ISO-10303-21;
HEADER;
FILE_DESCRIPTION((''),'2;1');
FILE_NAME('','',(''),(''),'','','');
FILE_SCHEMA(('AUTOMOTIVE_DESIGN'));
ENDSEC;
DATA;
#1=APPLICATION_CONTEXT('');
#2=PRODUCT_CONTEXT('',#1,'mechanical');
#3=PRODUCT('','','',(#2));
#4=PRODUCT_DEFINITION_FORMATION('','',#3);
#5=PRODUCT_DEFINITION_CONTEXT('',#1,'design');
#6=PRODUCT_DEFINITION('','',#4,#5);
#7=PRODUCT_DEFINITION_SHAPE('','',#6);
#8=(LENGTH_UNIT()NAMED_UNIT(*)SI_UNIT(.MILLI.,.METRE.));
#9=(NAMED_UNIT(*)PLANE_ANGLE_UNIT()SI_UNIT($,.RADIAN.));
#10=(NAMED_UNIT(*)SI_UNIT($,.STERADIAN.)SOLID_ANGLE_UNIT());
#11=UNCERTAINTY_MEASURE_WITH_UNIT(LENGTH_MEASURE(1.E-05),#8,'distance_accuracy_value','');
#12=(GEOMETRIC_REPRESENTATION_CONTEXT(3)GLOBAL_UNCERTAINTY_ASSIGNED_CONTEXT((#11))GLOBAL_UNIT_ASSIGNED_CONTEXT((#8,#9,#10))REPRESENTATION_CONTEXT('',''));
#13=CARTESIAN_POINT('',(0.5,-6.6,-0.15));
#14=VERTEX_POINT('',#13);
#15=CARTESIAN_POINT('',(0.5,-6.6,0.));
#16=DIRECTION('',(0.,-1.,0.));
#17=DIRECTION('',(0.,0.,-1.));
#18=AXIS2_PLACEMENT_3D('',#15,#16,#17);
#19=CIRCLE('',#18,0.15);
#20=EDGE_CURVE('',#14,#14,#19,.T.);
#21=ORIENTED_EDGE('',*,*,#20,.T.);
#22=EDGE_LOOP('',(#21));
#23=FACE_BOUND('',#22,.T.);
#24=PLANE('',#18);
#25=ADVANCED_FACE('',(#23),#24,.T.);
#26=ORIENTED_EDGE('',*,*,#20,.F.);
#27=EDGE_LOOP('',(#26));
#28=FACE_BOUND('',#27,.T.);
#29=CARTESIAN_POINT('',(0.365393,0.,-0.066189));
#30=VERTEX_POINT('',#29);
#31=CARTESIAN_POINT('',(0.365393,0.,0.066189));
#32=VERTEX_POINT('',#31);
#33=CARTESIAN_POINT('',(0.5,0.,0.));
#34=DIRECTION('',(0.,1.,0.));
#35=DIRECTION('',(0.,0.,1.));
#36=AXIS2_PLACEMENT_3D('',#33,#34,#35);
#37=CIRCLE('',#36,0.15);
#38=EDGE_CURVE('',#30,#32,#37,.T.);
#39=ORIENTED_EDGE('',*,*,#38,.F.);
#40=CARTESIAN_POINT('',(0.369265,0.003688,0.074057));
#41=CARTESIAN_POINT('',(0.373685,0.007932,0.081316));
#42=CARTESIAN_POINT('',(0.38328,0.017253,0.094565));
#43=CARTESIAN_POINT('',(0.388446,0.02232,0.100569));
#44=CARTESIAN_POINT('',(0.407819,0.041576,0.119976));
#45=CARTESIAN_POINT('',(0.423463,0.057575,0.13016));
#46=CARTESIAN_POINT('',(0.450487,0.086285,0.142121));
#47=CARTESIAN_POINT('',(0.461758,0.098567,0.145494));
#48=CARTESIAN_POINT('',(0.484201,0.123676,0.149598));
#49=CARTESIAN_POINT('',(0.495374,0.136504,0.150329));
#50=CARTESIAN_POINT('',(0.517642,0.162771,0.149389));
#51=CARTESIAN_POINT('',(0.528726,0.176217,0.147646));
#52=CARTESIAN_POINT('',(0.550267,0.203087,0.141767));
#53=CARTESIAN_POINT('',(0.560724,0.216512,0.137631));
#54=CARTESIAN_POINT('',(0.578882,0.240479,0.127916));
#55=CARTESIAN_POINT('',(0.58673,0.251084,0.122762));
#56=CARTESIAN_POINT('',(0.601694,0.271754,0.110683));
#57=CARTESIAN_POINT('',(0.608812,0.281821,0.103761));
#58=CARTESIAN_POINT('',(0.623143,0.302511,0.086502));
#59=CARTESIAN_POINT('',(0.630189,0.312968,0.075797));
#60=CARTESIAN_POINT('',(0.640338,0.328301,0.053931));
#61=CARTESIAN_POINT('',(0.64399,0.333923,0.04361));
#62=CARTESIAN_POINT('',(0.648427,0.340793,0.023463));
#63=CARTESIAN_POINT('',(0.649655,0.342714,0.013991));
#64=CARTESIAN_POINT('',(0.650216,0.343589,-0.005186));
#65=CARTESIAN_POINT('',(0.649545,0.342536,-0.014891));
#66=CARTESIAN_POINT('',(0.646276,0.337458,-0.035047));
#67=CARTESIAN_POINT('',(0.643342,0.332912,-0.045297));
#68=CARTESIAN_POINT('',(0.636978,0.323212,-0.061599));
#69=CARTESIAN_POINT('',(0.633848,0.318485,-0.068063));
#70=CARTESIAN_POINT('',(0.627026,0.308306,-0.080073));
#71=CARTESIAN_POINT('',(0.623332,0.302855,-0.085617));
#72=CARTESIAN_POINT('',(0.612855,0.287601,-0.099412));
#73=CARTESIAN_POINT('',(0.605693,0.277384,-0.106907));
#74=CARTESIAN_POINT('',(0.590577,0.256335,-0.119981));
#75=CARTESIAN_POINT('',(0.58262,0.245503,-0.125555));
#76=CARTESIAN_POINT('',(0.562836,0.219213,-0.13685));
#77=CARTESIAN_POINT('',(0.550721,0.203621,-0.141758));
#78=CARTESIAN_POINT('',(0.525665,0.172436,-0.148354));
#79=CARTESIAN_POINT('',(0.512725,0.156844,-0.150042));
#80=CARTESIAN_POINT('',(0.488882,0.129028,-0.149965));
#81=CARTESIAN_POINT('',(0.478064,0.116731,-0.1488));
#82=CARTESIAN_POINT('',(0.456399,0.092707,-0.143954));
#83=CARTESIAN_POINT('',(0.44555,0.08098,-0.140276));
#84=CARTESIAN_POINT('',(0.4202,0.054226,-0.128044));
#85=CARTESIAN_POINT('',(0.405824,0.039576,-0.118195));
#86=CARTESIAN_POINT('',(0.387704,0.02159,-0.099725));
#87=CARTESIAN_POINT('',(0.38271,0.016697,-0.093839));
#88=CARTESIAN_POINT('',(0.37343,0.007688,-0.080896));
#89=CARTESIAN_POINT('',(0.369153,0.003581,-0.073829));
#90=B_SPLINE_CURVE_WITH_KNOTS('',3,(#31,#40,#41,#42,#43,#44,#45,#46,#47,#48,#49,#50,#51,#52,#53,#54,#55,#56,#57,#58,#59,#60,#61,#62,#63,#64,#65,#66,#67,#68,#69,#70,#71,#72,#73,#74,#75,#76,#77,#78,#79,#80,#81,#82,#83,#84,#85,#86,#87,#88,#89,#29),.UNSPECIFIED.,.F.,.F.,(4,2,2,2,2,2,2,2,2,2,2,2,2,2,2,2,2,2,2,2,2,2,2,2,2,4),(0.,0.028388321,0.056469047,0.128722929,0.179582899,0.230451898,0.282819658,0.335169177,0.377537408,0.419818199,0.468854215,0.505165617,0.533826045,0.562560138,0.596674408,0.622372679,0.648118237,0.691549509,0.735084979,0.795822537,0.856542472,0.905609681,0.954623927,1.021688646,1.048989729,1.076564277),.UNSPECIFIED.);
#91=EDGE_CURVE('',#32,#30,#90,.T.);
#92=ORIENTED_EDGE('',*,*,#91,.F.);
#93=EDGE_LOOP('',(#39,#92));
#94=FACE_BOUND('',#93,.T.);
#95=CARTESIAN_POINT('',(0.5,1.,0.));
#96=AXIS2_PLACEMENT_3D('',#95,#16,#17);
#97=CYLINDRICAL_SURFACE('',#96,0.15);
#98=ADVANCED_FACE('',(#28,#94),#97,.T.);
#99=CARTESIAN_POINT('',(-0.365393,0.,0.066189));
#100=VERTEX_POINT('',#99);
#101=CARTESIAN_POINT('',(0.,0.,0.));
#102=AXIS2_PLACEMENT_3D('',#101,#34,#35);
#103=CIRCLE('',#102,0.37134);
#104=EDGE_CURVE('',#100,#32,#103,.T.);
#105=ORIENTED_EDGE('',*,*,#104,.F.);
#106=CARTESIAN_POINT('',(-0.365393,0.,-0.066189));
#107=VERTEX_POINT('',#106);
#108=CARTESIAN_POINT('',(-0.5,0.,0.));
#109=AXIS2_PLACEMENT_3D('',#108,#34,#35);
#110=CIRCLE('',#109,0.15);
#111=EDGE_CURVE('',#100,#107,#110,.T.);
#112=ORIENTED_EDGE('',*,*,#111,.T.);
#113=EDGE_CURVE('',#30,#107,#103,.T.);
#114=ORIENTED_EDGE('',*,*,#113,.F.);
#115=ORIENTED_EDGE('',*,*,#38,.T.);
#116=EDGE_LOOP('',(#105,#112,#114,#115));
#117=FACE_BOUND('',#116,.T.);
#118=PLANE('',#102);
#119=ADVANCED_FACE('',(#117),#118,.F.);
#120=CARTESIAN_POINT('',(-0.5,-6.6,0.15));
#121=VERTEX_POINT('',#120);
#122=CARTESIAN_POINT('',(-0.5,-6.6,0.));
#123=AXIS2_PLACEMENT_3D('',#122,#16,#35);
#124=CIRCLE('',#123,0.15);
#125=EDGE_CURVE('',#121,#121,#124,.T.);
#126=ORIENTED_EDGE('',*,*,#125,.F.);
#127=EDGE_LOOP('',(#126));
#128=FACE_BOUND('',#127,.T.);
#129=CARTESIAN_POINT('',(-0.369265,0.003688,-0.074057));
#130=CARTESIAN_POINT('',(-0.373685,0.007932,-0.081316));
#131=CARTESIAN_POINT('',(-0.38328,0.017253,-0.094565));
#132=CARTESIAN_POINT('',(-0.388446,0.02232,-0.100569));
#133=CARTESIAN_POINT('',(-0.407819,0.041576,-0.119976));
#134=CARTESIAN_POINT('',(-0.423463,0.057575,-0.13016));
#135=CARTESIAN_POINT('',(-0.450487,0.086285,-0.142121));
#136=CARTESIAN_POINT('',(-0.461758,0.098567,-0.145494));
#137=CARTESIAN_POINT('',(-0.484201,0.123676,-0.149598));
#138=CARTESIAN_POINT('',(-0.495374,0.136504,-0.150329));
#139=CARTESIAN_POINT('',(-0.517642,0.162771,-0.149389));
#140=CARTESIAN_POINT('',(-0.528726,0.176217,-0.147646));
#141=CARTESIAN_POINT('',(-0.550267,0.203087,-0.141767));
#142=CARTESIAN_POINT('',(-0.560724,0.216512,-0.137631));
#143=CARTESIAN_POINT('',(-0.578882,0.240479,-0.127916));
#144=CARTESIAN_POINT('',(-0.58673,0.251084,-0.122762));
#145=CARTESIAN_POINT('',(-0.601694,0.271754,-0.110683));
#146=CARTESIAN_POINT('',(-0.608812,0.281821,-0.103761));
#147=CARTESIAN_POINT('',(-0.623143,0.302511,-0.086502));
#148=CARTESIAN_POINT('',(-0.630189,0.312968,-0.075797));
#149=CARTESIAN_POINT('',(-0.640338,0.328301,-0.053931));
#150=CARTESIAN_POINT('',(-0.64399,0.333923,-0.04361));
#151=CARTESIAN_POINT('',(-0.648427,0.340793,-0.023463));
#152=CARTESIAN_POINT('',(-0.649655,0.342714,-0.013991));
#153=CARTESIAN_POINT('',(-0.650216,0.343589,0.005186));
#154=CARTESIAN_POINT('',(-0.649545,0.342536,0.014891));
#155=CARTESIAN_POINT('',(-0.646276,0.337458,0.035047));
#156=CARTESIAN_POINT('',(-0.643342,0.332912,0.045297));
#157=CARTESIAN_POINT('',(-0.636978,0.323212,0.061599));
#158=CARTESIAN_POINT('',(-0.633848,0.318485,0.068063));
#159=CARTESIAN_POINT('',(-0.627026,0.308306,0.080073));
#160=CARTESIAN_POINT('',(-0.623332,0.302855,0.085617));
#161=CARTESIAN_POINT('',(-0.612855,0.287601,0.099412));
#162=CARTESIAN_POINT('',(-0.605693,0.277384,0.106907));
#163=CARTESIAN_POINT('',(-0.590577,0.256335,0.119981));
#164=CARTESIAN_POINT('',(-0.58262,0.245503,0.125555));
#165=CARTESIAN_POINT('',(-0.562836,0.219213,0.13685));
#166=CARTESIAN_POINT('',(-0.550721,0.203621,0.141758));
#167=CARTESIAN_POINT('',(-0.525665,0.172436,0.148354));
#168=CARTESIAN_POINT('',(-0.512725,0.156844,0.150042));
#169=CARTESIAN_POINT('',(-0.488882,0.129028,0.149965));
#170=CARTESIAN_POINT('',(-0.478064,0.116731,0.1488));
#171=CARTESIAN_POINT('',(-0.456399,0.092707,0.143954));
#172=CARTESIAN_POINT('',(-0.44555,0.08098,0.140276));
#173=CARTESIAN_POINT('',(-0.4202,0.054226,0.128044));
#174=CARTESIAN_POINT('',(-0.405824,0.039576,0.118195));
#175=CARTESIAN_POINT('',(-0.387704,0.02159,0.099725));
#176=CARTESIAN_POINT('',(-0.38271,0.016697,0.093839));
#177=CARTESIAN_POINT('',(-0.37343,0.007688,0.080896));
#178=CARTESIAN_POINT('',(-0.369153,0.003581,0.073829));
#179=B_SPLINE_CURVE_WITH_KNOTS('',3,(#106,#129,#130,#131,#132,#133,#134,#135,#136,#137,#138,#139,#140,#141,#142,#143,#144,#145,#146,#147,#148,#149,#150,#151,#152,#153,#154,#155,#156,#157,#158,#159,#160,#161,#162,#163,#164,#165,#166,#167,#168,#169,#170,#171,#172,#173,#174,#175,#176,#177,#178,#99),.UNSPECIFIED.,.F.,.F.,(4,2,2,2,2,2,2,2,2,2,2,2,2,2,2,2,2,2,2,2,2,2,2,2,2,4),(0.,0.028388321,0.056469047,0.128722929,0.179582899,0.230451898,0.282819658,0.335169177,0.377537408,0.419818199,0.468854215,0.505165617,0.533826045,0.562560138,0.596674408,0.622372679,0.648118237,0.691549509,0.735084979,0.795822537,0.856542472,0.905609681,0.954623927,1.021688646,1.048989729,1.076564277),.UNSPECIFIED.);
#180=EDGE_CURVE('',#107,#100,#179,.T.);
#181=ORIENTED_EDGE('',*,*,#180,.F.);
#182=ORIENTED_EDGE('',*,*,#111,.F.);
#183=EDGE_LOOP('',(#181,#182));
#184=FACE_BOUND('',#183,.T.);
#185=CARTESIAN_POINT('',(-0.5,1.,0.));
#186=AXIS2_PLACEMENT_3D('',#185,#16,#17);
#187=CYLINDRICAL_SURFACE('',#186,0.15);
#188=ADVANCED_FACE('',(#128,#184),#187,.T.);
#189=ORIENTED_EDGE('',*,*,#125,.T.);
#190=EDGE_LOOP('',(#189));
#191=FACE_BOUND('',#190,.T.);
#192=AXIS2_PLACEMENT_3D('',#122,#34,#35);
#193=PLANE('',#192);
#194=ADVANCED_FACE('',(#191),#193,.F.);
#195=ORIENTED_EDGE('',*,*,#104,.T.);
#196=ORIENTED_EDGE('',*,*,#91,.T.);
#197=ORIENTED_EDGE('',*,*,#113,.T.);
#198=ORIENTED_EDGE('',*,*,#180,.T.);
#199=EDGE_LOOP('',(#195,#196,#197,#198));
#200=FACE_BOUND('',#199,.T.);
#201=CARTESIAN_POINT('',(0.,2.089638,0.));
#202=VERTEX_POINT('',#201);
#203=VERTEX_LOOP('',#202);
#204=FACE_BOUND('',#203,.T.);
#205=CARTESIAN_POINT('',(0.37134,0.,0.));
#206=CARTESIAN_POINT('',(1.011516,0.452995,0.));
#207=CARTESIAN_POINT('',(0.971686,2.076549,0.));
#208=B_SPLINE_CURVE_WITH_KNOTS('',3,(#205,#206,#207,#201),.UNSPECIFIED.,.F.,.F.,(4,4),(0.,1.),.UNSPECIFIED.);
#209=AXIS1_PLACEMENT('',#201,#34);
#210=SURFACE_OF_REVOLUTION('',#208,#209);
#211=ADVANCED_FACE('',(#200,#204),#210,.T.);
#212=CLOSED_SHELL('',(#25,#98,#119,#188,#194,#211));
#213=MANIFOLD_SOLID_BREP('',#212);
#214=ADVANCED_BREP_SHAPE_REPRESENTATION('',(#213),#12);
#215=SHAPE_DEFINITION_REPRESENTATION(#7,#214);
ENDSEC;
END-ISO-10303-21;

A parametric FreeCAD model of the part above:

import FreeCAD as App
import Part
import Sketcher

V = App.Vector
Q = App.Units.Quantity

doc = App.newDocument("Part")
params = doc.addObject("Spreadsheet::Sheet", "Params")
for row, (alias, value) in enumerate([
    ("revolution_angle", "360 deg"),
    ("sketch2_diameter", "0.3 mm"),
    ("pad1_length", "6.6 mm"),
    ("pad1_length2", "1 mm"),
], start=1):
    params.set(f"A{row}", alias)
    params.set(f"B{row}", "=" + value)
    params.setAlias(f"B{row}", alias)

body = doc.addObject("PartDesign::Body", "Body")

# Sketch on XY plane
sketch1 = body.newObject("Sketcher::SketchObject", "Sketch")
sketch1.AttachmentSupport = (doc.getObject("XY_Plane"), [""])
sketch1.MapMode = "FlatFace"
sketch1.addGeometry([
    Part.LineSegment(V(0, 2.089638, 0), V(0, 0, 0)),
    Part.LineSegment(V(0, 0, 0), V(0.37134, 0, 0)),
    Part.BSplineCurve([V(0, 2.089638, 0), V(0.971686, 2.076549, 0), V(1.011516, 0.452995, 0), V(0.37134, 0, 0)], [4, 4], [0, 1], False, 3, [1, 1, 1, 1], False),
], False)
sketch1.addConstraint([
    Sketcher.Constraint("Block", 2),
    Sketcher.Constraint("Coincident", 0, 2, 1, 1),
    Sketcher.Constraint("Coincident", 1, 2, 2, 2),
    Sketcher.Constraint("Coincident", 2, 1, 0, 1),
    Sketcher.Constraint("Vertical", 0),
    Sketcher.Constraint("Horizontal", 1),
])
revolution = body.newObject("PartDesign::Revolution", "Revolution")
revolution.Profile = sketch1
revolution.ReferenceAxis = (sketch1, ["V_Axis"])
revolution.setExpression("Angle", "Params.revolution_angle")

# Sketch on XZ plane
sketch2 = body.newObject("Sketcher::SketchObject", "Sketch001")
sketch2.AttachmentSupport = (doc.getObject("XZ_Plane"), [""])
sketch2.MapMode = "FlatFace"
sketch2.addGeometry([
    Part.Circle(V(0.5, 0, 0), V(0, 0, 1), 0.15),
    Part.Circle(V(-0.5, 0, 0), V(0, 0, 1), 0.15),
], False)
sketch2.addConstraint([
    Sketcher.Constraint("Equal", 0, 1),
    Sketcher.Constraint("Symmetric", 0, 3, 1, 3, -1, 1),
    Sketcher.Constraint("PointOnObject", 0, 3, -1),
    Sketcher.Constraint("Diameter", 0, Q("0.3 mm")),
    Sketcher.Constraint("DistanceX", 1, 3, 0, 3, Q("1 mm")),
])
sketch2.setExpression("Constraints[3]", "Params.sketch2_diameter")
pad1 = body.newObject("PartDesign::Pad", "Pad")
pad1.Profile = sketch2
pad1.Type = "TwoLengths"
pad1.setExpression("Length", "Params.pad1_length")
pad1.setExpression("Length2", "Params.pad1_length2")

doc.recompute()
